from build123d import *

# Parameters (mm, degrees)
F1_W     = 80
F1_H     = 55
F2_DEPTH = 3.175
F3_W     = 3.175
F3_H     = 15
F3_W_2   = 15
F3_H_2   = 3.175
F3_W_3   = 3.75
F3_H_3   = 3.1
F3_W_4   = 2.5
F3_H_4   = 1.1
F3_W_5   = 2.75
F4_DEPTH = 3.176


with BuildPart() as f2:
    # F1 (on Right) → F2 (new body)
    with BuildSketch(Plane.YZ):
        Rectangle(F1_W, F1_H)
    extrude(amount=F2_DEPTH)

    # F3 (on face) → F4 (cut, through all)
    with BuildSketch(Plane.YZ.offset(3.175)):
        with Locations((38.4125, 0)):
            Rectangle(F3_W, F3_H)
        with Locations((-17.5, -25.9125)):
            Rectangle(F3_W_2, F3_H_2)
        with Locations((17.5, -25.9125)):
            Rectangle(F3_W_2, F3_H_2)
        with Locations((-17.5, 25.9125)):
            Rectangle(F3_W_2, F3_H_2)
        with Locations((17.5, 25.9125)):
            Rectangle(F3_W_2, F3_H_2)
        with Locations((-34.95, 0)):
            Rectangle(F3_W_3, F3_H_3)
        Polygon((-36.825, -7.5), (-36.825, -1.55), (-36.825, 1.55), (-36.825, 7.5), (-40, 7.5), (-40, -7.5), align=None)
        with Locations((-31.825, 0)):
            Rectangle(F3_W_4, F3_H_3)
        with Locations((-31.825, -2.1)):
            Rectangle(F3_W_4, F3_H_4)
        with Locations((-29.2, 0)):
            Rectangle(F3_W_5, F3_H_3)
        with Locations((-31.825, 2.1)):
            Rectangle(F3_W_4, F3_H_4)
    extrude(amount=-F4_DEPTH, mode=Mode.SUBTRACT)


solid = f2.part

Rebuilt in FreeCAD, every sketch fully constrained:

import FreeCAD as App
import Part
import Sketcher
from FreeCAD import Vector
Q = App.Units.Quantity


def add_polygon(sketch, points):
    """Adds a closed chain of lines whose ends are joined by coincident constraints."""
    first, n = sketch.GeometryCount, len(points)
    for a, b in zip(points, points[1:] + points[:1]):
        sketch.addGeometry(Part.LineSegment(App.Vector(*a, 0), App.Vector(*b, 0)), False)
    for i in range(n):
        sketch.addConstraint(Sketcher.Constraint("Coincident", first + i, 2, first + (i + 1) % n, 1))

doc = App.newDocument("Part")
body = doc.addObject("PartDesign::Body", "Body")

sketch1 = body.newObject("Sketcher::SketchObject", "Sketch")
sketch1.AttachmentSupport = (doc.getObject("YZ_Plane"), [""])
sketch1.MapMode = "FlatFace"
add_polygon(sketch1, [(-40, 27.5), (-40, -27.5), (40, -27.5), (40, 27.5)])
sketch1.addConstraint(Sketcher.Constraint("Vertical", 0))
sketch1.addConstraint(Sketcher.Constraint("Horizontal", 1))
sketch1.addConstraint(Sketcher.Constraint("Vertical", 2))
sketch1.addConstraint(Sketcher.Constraint("Horizontal", 3))
sketch1.addConstraint(Sketcher.Constraint("Symmetric", 0, 2, 2, 2, -1, 1))
sketch1.addConstraint(Sketcher.Constraint("DistanceX", 1, 1, 1, 2, Q("80 mm")))
sketch1.addConstraint(Sketcher.Constraint("DistanceY", 0, 2, 0, 1, Q("55 mm")))
pad1 = body.newObject("PartDesign::Pad", "Pad")
pad1.Profile = sketch1
pad1.Length = 3.175

sketch2 = body.newObject("Sketcher::SketchObject", "Sketch001")
sketch2.AttachmentSupport = (doc.getObject("YZ_Plane"), [""])
sketch2.MapMode = "FlatFace"
sketch2.AttachmentOffset = App.Placement(Vector(0, 0, 3.175), App.Rotation())
add_polygon(sketch2, [(36.825, 7.5), (36.825, -7.5), (40, -7.5), (40, 7.5)])
add_polygon(sketch2, [(-25, -24.325), (-25, -27.5), (-10, -27.5), (-10, -24.325)])
add_polygon(sketch2, [(10, -24.325), (10, -27.5), (25, -27.5), (25, -24.325)])
add_polygon(sketch2, [(-25, 27.5), (-25, 24.325), (-10, 24.325), (-10, 27.5)])
add_polygon(sketch2, [(10, 27.5), (10, 24.325), (25, 24.325), (25, 27.5)])
add_polygon(sketch2, [(-36.825, -1.55), (-33.075, -1.55), (-33.075, -2.65), (-30.575, -2.65), (-30.575, -1.55), (-27.825, -1.55), (-27.825, 1.55), (-30.575, 1.55), (-30.575, 2.65), (-33.075, 2.65), (-33.075, 1.55), (-36.825, 1.55), (-36.825, 7.5), (-40, 7.5), (-40, -7.5), (-36.825, -7.5)])
sketch2.addConstraint(Sketcher.Constraint("Vertical", 0))
sketch2.addConstraint(Sketcher.Constraint("Horizontal", 1))
sketch2.addConstraint(Sketcher.Constraint("Vertical", 2))
sketch2.addConstraint(Sketcher.Constraint("Horizontal", 3))
sketch2.addConstraint(Sketcher.Constraint("Vertical", 4))
sketch2.addConstraint(Sketcher.Constraint("Horizontal", 5))
sketch2.addConstraint(Sketcher.Constraint("Vertical", 6))
sketch2.addConstraint(Sketcher.Constraint("Horizontal", 7))
sketch2.addConstraint(Sketcher.Constraint("Vertical", 8))
sketch2.addConstraint(Sketcher.Constraint("Horizontal", 9))
sketch2.addConstraint(Sketcher.Constraint("Vertical", 10))
sketch2.addConstraint(Sketcher.Constraint("Horizontal", 11))
sketch2.addConstraint(Sketcher.Constraint("Vertical", 12))
sketch2.addConstraint(Sketcher.Constraint("Horizontal", 13))
sketch2.addConstraint(Sketcher.Constraint("Vertical", 14))
sketch2.addConstraint(Sketcher.Constraint("Horizontal", 15))
sketch2.addConstraint(Sketcher.Constraint("Vertical", 16))
sketch2.addConstraint(Sketcher.Constraint("Horizontal", 17))
sketch2.addConstraint(Sketcher.Constraint("Vertical", 18))
sketch2.addConstraint(Sketcher.Constraint("Horizontal", 19))
sketch2.addConstraint(Sketcher.Constraint("Horizontal", 20))
sketch2.addConstraint(Sketcher.Constraint("Vertical", 21))
sketch2.addConstraint(Sketcher.Constraint("Horizontal", 22))
sketch2.addConstraint(Sketcher.Constraint("Vertical", 23))
sketch2.addConstraint(Sketcher.Constraint("Horizontal", 24))
sketch2.addConstraint(Sketcher.Constraint("Vertical", 25))
sketch2.addConstraint(Sketcher.Constraint("Horizontal", 26))
sketch2.addConstraint(Sketcher.Constraint("Vertical", 27))
sketch2.addConstraint(Sketcher.Constraint("Horizontal", 28))
sketch2.addConstraint(Sketcher.Constraint("Vertical", 29))
sketch2.addConstraint(Sketcher.Constraint("Horizontal", 30))
sketch2.addConstraint(Sketcher.Constraint("Vertical", 31))
sketch2.addConstraint(Sketcher.Constraint("Horizontal", 32))
sketch2.addConstraint(Sketcher.Constraint("Vertical", 33))
sketch2.addConstraint(Sketcher.Constraint("Horizontal", 34))
sketch2.addConstraint(Sketcher.Constraint("Vertical", 35))
sketch2.addConstraint(Sketcher.Constraint("Symmetric", 10, 2, 12, 2, -1, 1))
sketch2.addConstraint(Sketcher.Constraint("Symmetric", 8, 2, 14, 2, -1, 1))
sketch2.addConstraint(Sketcher.Constraint("Symmetric", 6, 2, 16, 2, -1, 1))
sketch2.addConstraint(Sketcher.Constraint("Symmetric", 4, 2, 18, 2, -1, 1))
sketch2.addConstraint(Sketcher.Constraint("Symmetric", 0, 2, 31, 2, -1, 1))
sketch2.addConstraint(Sketcher.Constraint("Symmetric", 2, 2, 33, 2, -1, 1))
sketch2.addConstraint(Sketcher.Constraint("Symmetric", 5, 2, 8, 2, -2))
sketch2.addConstraint(Sketcher.Constraint("Symmetric", 7, 2, 10, 2, -2))
sketch2.addConstraint(Sketcher.Constraint("Symmetric", 0, 2, 34, 2, -2))
sketch2.addConstraint(Sketcher.Constraint("Symmetric", 23, 2, 26, 2, -1))
sketch2.addConstraint(Sketcher.Constraint("Symmetric", 21, 2, 28, 2, -1))
sketch2.addConstraint(Sketcher.Constraint("Horizontal", 20, 2, 23, 2))
sketch2.addConstraint(Sketcher.Constraint("Horizontal", 26, 2, 29, 2))
sketch2.addConstraint(Sketcher.Constraint("Equal", 19, 0))
sketch2.addConstraint(Sketcher.Constraint("Equal", 34, 4))
sketch2.addConstraint(Sketcher.Constraint("DistanceX", 5, 1, 5, 2, Q("15 mm")))
sketch2.addConstraint(Sketcher.Constraint("DistanceX", 22, 1, 22, 2, Q("2.5 mm")))
sketch2.addConstraint(Sketcher.Constraint("DistanceY", 21, 2, 21, 1, Q("1.1 mm")))
sketch2.addConstraint(Sketcher.Constraint("DistanceY", 25, 1, 25, 2, Q("3.1 mm")))
sketch2.addConstraint(Sketcher.Constraint("DistanceX", -1, 1, 1, 2, Q("40 mm")))
sketch2.addConstraint(Sketcher.Constraint("DistanceX", 4, 2, -1, 1, Q("25 mm")))
sketch2.addConstraint(Sketcher.Constraint("DistanceY", 4, 2, 0, 2, Q("20 mm")))
sketch2.addConstraint(Sketcher.Constraint("DistanceX", 20, 1, 20, 2, Q("3.75 mm")))
sketch2.addConstraint(Sketcher.Constraint("DistanceX", 24, 1, 24, 2, Q("2.75 mm")))
sketch2.addConstraint(Sketcher.Constraint("DistanceX", 1, 1, 1, 2, Q("3.175 mm")))
pocket1 = body.newObject("PartDesign::Pocket", "Pocket")
pocket1.Profile = sketch2
pocket1.Type = "ThroughAll"

doc.recompute()
